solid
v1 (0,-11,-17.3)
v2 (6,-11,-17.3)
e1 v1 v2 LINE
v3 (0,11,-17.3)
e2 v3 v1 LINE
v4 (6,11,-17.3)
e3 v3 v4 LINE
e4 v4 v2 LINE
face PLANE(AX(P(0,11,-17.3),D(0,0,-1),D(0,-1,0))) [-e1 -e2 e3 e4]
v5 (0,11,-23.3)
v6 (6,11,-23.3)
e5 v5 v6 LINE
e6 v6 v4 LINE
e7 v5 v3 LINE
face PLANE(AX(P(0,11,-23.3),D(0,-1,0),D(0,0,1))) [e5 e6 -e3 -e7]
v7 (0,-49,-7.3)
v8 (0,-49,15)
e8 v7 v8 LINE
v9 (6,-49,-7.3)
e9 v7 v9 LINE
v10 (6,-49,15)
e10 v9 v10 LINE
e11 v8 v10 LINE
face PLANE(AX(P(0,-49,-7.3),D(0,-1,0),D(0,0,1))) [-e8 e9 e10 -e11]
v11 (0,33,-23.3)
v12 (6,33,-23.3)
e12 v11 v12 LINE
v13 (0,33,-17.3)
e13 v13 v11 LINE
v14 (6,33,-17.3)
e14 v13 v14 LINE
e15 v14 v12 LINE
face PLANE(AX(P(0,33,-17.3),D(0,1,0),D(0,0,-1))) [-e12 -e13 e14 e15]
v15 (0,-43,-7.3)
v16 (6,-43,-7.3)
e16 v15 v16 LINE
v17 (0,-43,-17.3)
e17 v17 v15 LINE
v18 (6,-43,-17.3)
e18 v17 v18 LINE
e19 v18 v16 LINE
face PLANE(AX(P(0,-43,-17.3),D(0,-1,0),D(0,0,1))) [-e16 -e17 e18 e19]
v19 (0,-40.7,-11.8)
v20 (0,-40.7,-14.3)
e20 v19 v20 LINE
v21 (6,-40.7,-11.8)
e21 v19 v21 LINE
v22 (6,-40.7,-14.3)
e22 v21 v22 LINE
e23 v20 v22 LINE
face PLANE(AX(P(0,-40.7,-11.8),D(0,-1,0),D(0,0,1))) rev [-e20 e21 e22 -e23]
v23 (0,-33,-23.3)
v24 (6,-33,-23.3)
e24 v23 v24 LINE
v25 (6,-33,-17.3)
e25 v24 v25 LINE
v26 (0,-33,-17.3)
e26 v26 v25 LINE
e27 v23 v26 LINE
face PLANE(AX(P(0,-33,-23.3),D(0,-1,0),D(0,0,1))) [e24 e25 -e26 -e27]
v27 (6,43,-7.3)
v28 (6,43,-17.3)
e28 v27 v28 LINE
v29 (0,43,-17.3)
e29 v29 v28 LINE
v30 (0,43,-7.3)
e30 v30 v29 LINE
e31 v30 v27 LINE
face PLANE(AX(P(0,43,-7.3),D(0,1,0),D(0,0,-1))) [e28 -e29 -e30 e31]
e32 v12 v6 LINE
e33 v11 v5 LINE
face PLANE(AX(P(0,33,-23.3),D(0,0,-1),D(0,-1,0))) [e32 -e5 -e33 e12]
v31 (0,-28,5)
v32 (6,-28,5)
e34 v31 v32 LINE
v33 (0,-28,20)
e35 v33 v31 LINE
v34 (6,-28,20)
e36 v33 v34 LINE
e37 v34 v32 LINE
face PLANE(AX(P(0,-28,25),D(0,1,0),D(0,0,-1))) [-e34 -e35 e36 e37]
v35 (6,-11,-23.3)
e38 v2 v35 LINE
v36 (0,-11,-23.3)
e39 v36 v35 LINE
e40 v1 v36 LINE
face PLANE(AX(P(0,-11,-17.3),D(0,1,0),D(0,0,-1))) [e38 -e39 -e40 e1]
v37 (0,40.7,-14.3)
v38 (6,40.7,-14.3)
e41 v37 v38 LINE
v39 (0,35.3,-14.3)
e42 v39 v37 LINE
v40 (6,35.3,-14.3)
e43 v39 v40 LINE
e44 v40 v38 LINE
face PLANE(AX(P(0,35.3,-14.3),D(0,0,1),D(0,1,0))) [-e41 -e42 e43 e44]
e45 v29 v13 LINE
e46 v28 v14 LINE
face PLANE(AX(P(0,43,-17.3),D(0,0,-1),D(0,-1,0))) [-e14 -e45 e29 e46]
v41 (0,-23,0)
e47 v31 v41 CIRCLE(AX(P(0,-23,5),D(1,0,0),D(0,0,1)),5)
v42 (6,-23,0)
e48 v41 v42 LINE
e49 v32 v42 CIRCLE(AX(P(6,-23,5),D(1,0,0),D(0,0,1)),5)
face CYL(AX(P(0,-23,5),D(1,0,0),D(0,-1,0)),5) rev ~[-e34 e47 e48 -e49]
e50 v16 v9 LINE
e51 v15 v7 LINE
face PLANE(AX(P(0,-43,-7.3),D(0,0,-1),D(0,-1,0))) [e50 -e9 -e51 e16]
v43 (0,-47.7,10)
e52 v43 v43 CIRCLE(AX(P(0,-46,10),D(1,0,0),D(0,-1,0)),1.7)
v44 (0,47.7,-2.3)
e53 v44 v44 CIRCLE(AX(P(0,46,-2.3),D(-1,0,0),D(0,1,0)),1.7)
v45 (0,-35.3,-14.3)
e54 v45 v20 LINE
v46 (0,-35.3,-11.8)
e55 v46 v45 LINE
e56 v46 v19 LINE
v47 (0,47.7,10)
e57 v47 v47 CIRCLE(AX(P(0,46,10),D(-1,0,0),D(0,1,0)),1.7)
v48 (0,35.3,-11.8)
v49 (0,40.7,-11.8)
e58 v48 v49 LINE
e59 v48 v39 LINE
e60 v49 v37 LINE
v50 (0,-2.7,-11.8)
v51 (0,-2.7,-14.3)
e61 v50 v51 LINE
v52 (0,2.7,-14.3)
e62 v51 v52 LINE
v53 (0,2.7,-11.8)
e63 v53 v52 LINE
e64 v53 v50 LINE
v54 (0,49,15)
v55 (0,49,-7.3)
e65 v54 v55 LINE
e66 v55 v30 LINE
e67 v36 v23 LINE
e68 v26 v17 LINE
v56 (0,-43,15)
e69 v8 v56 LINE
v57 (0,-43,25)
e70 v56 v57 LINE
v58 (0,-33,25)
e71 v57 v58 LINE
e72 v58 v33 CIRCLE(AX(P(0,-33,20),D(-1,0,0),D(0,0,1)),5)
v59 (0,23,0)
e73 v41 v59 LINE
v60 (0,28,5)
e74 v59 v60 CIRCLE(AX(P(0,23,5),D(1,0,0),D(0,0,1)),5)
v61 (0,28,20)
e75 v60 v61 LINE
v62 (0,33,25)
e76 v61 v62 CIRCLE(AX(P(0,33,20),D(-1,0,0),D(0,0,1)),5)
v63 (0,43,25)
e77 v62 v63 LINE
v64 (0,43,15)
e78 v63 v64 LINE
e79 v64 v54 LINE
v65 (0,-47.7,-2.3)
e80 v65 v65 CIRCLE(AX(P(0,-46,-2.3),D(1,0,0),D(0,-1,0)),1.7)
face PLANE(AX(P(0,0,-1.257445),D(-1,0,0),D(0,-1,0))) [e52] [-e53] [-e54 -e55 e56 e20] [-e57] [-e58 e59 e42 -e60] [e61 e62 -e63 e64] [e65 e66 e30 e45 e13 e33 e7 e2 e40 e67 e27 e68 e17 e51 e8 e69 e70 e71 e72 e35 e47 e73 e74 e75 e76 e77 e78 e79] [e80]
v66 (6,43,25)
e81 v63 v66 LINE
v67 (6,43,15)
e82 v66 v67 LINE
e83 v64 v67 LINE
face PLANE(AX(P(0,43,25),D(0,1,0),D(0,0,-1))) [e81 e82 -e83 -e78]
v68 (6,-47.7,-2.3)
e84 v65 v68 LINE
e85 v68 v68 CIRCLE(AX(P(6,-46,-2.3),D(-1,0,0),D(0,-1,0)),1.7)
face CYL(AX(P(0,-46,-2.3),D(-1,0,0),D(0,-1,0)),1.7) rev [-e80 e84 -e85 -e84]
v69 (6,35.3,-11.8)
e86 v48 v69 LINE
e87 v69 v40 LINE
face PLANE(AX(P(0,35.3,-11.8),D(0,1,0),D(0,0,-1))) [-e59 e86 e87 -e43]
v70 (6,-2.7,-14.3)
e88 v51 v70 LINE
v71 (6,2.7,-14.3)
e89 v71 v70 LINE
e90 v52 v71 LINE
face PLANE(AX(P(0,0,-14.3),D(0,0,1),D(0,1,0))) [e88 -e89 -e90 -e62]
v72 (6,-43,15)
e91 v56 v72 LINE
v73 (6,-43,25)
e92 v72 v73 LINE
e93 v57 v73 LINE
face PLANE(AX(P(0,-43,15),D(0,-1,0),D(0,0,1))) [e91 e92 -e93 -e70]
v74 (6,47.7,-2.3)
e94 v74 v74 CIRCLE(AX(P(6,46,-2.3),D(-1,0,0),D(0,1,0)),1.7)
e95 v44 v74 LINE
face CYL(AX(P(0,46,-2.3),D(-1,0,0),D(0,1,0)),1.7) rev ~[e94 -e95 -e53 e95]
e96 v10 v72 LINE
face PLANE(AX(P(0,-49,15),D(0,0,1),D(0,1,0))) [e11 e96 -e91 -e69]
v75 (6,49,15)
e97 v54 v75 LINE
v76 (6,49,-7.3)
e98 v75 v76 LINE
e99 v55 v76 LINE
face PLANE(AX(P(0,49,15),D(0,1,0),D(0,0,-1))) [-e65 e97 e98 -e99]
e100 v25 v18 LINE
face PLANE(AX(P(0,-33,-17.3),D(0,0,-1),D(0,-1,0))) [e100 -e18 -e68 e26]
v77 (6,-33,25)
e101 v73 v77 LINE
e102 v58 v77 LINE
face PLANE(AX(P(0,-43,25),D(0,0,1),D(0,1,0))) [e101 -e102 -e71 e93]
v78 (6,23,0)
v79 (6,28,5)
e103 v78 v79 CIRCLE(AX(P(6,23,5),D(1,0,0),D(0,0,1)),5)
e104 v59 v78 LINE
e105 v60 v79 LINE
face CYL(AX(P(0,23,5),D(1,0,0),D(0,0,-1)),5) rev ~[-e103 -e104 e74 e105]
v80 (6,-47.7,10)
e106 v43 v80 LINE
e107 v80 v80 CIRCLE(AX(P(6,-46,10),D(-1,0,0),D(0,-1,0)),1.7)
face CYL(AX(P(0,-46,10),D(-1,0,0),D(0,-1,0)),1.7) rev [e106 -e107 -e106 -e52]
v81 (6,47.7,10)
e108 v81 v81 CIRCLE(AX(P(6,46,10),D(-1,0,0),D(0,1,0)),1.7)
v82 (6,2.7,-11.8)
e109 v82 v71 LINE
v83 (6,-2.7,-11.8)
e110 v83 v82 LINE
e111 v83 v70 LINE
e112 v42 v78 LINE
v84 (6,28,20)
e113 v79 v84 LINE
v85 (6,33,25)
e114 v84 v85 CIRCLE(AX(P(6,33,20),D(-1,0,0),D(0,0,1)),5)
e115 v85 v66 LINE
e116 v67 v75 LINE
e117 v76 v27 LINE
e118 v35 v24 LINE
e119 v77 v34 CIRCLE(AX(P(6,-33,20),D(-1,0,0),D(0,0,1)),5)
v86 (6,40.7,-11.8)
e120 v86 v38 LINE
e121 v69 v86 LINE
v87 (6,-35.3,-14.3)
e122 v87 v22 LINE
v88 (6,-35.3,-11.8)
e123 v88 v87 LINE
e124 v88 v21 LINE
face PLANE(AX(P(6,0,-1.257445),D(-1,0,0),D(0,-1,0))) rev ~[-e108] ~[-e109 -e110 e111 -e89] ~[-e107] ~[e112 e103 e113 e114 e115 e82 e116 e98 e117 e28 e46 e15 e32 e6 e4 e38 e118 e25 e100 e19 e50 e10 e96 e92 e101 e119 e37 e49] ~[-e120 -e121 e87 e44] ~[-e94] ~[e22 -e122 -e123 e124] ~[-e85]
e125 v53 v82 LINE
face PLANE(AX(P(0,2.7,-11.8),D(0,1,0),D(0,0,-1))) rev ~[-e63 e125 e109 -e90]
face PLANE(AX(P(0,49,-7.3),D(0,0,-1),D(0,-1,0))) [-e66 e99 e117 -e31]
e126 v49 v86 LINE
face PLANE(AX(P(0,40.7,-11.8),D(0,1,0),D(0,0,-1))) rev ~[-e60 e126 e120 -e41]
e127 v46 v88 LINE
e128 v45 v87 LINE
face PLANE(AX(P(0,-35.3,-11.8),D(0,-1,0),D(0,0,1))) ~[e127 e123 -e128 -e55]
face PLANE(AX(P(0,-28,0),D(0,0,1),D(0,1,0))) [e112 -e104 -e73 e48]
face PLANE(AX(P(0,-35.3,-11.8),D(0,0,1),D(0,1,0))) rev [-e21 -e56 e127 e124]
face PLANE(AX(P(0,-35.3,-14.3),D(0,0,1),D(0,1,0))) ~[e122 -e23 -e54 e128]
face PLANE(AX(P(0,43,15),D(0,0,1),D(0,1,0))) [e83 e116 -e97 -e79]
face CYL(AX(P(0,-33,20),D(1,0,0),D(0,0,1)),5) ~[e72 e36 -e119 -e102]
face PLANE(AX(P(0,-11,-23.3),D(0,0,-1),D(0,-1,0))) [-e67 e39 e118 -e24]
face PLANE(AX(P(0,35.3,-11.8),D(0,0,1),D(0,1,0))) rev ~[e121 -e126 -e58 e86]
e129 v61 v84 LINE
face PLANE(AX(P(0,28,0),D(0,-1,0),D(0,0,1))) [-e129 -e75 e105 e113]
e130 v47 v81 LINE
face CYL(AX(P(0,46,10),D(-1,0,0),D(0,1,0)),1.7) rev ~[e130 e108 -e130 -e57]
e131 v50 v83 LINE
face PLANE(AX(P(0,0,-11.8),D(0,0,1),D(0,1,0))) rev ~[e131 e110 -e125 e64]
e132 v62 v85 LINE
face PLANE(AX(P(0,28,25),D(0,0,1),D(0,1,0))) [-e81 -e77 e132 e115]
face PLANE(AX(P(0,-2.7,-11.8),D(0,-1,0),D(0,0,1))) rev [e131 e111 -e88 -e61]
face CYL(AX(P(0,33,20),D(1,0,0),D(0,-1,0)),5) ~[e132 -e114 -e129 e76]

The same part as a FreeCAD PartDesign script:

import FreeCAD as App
import Part
import Sketcher
Q = App.Units.Quantity


def edges_at(feature, points):
    """Names of the edges that pass closest to the given points."""
    edges = feature.Shape.Edges
    near = lambda p: min(range(len(edges)), key=lambda i: edges[i].distToShape(Part.Vertex(*p))[0])
    return sorted({f"Edge{near(p) + 1}" for p in points})

doc = App.newDocument("Part")
body = doc.addObject("PartDesign::Body", "Body")

# Sketch on YZ plane
sketch1 = body.newObject("Sketcher::SketchObject", "Sketch")
sketch1.AttachmentSupport = (doc.getObject("YZ_Plane"), [""])
sketch1.MapMode = "FlatFace"
sketch1.addGeometry([
    Part.LineSegment(App.Vector(-28, 25, 0), App.Vector(-43, 25, 0)),  # 0
    Part.LineSegment(App.Vector(-43, 25, 0), App.Vector(-43, 15, 0)),  # 1
    Part.LineSegment(App.Vector(-43, 15, 0), App.Vector(-49, 15, 0)),  # 2
    Part.LineSegment(App.Vector(-49, 15, 0), App.Vector(-49, -7.3, 0)),  # 3
    Part.LineSegment(App.Vector(-49, -7.3, 0), App.Vector(-43, -7.3, 0)),  # 4
    Part.LineSegment(App.Vector(-43, -7.3, 0), App.Vector(-43, -17.3, 0)),  # 5
    Part.LineSegment(App.Vector(-43, -17.3, 0), App.Vector(-33, -17.3, 0)),  # 6
    Part.LineSegment(App.Vector(-33, -17.3, 0), App.Vector(-33, -23.3, 0)),  # 7
    Part.LineSegment(App.Vector(-33, -23.3, 0), App.Vector(-11, -23.3, 0)),  # 8
    Part.LineSegment(App.Vector(-11, -23.3, 0), App.Vector(-11, -17.3, 0)),  # 9
    Part.LineSegment(App.Vector(-11, -17.3, 0), App.Vector(11, -17.3, 0)),  # 10
    Part.LineSegment(App.Vector(11, -17.3, 0), App.Vector(11, -23.3, 0)),  # 11
    Part.LineSegment(App.Vector(11, -23.3, 0), App.Vector(33, -23.3, 0)),  # 12
    Part.LineSegment(App.Vector(33, -23.3, 0), App.Vector(33, -17.3, 0)),  # 13
    Part.LineSegment(App.Vector(33, -17.3, 0), App.Vector(43, -17.3, 0)),  # 14
    Part.LineSegment(App.Vector(43, -17.3, 0), App.Vector(43, -7.3, 0)),  # 15
    Part.LineSegment(App.Vector(43, -7.3, 0), App.Vector(49, -7.3, 0)),  # 16
    Part.LineSegment(App.Vector(49, -7.3, 0), App.Vector(49, 15, 0)),  # 17
    Part.LineSegment(App.Vector(49, 15, 0), App.Vector(43, 15, 0)),  # 18
    Part.LineSegment(App.Vector(43, 15, 0), App.Vector(43, 25, 0)),  # 19
    Part.LineSegment(App.Vector(43, 25, 0), App.Vector(28, 25, 0)),  # 20
    Part.LineSegment(App.Vector(28, 25, 0), App.Vector(28, 0, 0)),  # 21
    Part.LineSegment(App.Vector(28, 0, 0), App.Vector(-28, 0, 0)),  # 22
    Part.LineSegment(App.Vector(-28, 0, 0), App.Vector(-28, 25, 0)),  # 23
], False)
sketch1.addConstraint([
    Sketcher.Constraint("Coincident", 0, 2, 1, 1),
    Sketcher.Constraint("Coincident", 1, 2, 2, 1),
    Sketcher.Constraint("Coincident", 2, 2, 3, 1),
    Sketcher.Constraint("Coincident", 3, 2, 4, 1),
    Sketcher.Constraint("Coincident", 4, 2, 5, 1),
    Sketcher.Constraint("Coincident", 5, 2, 6, 1),
    Sketcher.Constraint("Coincident", 6, 2, 7, 1),
    Sketcher.Constraint("Coincident", 7, 2, 8, 1),
    Sketcher.Constraint("Coincident", 8, 2, 9, 1),
    Sketcher.Constraint("Coincident", 9, 2, 10, 1),
    Sketcher.Constraint("Coincident", 10, 2, 11, 1),
    Sketcher.Constraint("Coincident", 11, 2, 12, 1),
    Sketcher.Constraint("Coincident", 12, 2, 13, 1),
    Sketcher.Constraint("Coincident", 13, 2, 14, 1),
    Sketcher.Constraint("Coincident", 14, 2, 15, 1),
    Sketcher.Constraint("Coincident", 15, 2, 16, 1),
    Sketcher.Constraint("Coincident", 16, 2, 17, 1),
    Sketcher.Constraint("Coincident", 17, 2, 18, 1),
    Sketcher.Constraint("Coincident", 18, 2, 19, 1),
    Sketcher.Constraint("Coincident", 19, 2, 20, 1),
    Sketcher.Constraint("Coincident", 20, 2, 21, 1),
    Sketcher.Constraint("Coincident", 21, 2, 22, 1),
    Sketcher.Constraint("Coincident", 22, 2, 23, 1),
    Sketcher.Constraint("Coincident", 23, 2, 0, 1),
    Sketcher.Constraint("Horizontal", 0),
    Sketcher.Constraint("Vertical", 1),
    Sketcher.Constraint("Horizontal", 2),
    Sketcher.Constraint("Vertical", 3),
    Sketcher.Constraint("Horizontal", 4),
    Sketcher.Constraint("Vertical", 5),
    Sketcher.Constraint("Horizontal", 6),
    Sketcher.Constraint("Vertical", 7),
    Sketcher.Constraint("Horizontal", 8),
    Sketcher.Constraint("Vertical", 9),
    Sketcher.Constraint("Horizontal", 10),
    Sketcher.Constraint("Vertical", 11),
    Sketcher.Constraint("Horizontal", 12),
    Sketcher.Constraint("Vertical", 13),
    Sketcher.Constraint("Horizontal", 14),
    Sketcher.Constraint("Vertical", 15),
    Sketcher.Constraint("Horizontal", 16),
    Sketcher.Constraint("Vertical", 17),
    Sketcher.Constraint("Horizontal", 18),
    Sketcher.Constraint("Vertical", 19),
    Sketcher.Constraint("Horizontal", 20),
    Sketcher.Constraint("Vertical", 21),
    Sketcher.Constraint("Horizontal", 22),
    Sketcher.Constraint("Vertical", 23),
    Sketcher.Constraint("Symmetric", 21, 2, 22, 2, -1, 1),
    Sketcher.Constraint("Symmetric", 8, 2, 11, 2, -2),
    Sketcher.Constraint("Symmetric", 6, 2, 13, 2, -2),
    Sketcher.Constraint("Symmetric", 4, 2, 15, 2, -2),
    Sketcher.Constraint("Symmetric", 2, 2, 17, 2, -2),
    Sketcher.Constraint("Symmetric", 0, 2, 19, 2, -2),
    Sketcher.Constraint("Horizontal", 6, 2, 9, 2),
    Sketcher.Constraint("Vertical", 1, 2, 4, 2),
    Sketcher.Constraint("Equal", 8, 10),
    Sketcher.Constraint("Equal", 14, 1),
    Sketcher.Constraint("Equal", 1, 5),
    Sketcher.Constraint("Equal", 18, 7),
    Sketcher.Constraint("DistanceX", 0, 2, 0, 1, Q("15 mm")),
    Sketcher.Constraint("DistanceX", 2, 2, 2, 1, Q("6 mm")),
    Sketcher.Constraint("DistanceX", 6, 1, 6, 2, Q("10 mm")),
    Sketcher.Constraint("DistanceX", 8, 1, 8, 2, Q("22 mm")),
    Sketcher.Constraint("DistanceY", 21, 2, 21, 1, Q("25 mm")),
    Sketcher.Constraint("DistanceY", 3, 2, 3, 1, Q("22.3 mm")),
])
pad1 = body.newObject("PartDesign::Pad", "Pad")
pad1.Profile = sketch1
pad1.Length = 6

# Sketch on YZ plane
sketch2 = body.newObject("Sketcher::SketchObject", "Sketch001")
sketch2.AttachmentSupport = (doc.getObject("YZ_Plane"), [""])
sketch2.MapMode = "FlatFace"
sketch2.addGeometry([
    Part.LineSegment(App.Vector(35.3, -14.3, 0), App.Vector(35.3, -11.8, 0)),  # 0
    Part.LineSegment(App.Vector(35.3, -11.8, 0), App.Vector(40.7, -11.8, 0)),  # 1
    Part.LineSegment(App.Vector(40.7, -11.8, 0), App.Vector(40.7, -14.3, 0)),  # 2
    Part.LineSegment(App.Vector(40.7, -14.3, 0), App.Vector(35.3, -14.3, 0)),  # 3
    Part.LineSegment(App.Vector(0, -14.3, 0), App.Vector(0, -11.8, 0)),  # 4
    Part.LineSegment(App.Vector(0, -11.8, 0), App.Vector(2.7, -11.8, 0)),  # 5
    Part.LineSegment(App.Vector(2.7, -11.8, 0), App.Vector(2.7, -14.3, 0)),  # 6
    Part.LineSegment(App.Vector(2.7, -14.3, 0), App.Vector(0, -14.3, 0)),  # 7
], False)
sketch2.addConstraint([
    Sketcher.Constraint("Coincident", 0, 2, 1, 1),
    Sketcher.Constraint("Coincident", 1, 2, 2, 1),
    Sketcher.Constraint("Coincident", 2, 2, 3, 1),
    Sketcher.Constraint("Coincident", 3, 2, 0, 1),
    Sketcher.Constraint("Coincident", 4, 2, 5, 1),
    Sketcher.Constraint("Coincident", 5, 2, 6, 1),
    Sketcher.Constraint("Coincident", 6, 2, 7, 1),
    Sketcher.Constraint("Coincident", 7, 2, 4, 1),
    Sketcher.Constraint("Vertical", 0),
    Sketcher.Constraint("Horizontal", 1),
    Sketcher.Constraint("Vertical", 2),
    Sketcher.Constraint("Horizontal", 3),
    Sketcher.Constraint("Vertical", 4),
    Sketcher.Constraint("Horizontal", 5),
    Sketcher.Constraint("Vertical", 6),
    Sketcher.Constraint("Horizontal", 7),
    Sketcher.Constraint("PointOnObject", 4, 2, -2),
    Sketcher.Constraint("Horizontal", 1, 2, 4, 2),
    Sketcher.Constraint("Horizontal", 3, 2, 6, 2),
    Sketcher.Constraint("DistanceX", 1, 1, 1, 2, Q("5.4 mm")),
    Sketcher.Constraint("DistanceX", 5, 1, 5, 2, Q("2.7 mm")),
    Sketcher.Constraint("DistanceY", 0, 1, 0, 2, Q("2.5 mm")),
    Sketcher.Constraint("DistanceX", 5, 2, 1, 2, Q("38 mm")),
    Sketcher.Constraint("DistanceY", 0, 2, -1, 1, Q("11.8 mm")),
])
pocket1 = body.newObject("PartDesign::Pocket", "Pocket")
pocket1.Profile = sketch2
pocket1.Type = "ThroughAll"
pocket1.Reversed = True
doc.recompute()

mirrored = body.newObject("PartDesign::Mirrored", "Mirrored")
mirrored.Originals = [pocket1]
mirrored.MirrorPlane = (doc.getObject("XZ_Plane"), [""])
body.Tip = mirrored

# Sketch on YZ plane
sketch3 = body.newObject("Sketcher::SketchObject", "Sketch002")
sketch3.AttachmentSupport = (doc.getObject("YZ_Plane"), [""])
sketch3.MapMode = "FlatFace"
sketch3.addGeometry([
    Part.Circle(App.Vector(46, 10, 0), App.Vector(0, 0, 1), 1.7),
    Part.Circle(App.Vector(46, -2.3, 0), App.Vector(0, 0, 1), 1.7),
], False)
sketch3.addConstraint([
    Sketcher.Constraint("Equal", 0, 1),
    Sketcher.Constraint("Vertical", 0, 3, 1, 3),
    Sketcher.Constraint("Diameter", 0, Q("3.4 mm")),
    Sketcher.Constraint("DistanceX", -1, 1, 0, 3, Q("46 mm")),
    Sketcher.Constraint("DistanceY", -1, 1, 0, 3, Q("10 mm")),
    Sketcher.Constraint("DistanceY", 1, 3, -1, 1, Q("2.3 mm")),
])
pocket2 = body.newObject("PartDesign::Pocket", "Pocket001")
pocket2.Profile = sketch3
pocket2.Type = "ThroughAll"
pocket2.Reversed = True
doc.recompute()

mirrored2 = body.newObject("PartDesign::Mirrored", "Mirrored001")
mirrored2.Originals = [pocket2]
mirrored2.MirrorPlane = (doc.getObject("XZ_Plane"), [""])
body.Tip = mirrored2
doc.recompute()

fillet = body.newObject("PartDesign::Fillet", "Fillet")
fillet.Base = (mirrored2, edges_at(mirrored2, [
    (3, -28, 0),
    (3, -28, 25),
    (3, 28, 25),
    (3, 28, 0),
]))
fillet.Radius = 5

doc.recompute()
